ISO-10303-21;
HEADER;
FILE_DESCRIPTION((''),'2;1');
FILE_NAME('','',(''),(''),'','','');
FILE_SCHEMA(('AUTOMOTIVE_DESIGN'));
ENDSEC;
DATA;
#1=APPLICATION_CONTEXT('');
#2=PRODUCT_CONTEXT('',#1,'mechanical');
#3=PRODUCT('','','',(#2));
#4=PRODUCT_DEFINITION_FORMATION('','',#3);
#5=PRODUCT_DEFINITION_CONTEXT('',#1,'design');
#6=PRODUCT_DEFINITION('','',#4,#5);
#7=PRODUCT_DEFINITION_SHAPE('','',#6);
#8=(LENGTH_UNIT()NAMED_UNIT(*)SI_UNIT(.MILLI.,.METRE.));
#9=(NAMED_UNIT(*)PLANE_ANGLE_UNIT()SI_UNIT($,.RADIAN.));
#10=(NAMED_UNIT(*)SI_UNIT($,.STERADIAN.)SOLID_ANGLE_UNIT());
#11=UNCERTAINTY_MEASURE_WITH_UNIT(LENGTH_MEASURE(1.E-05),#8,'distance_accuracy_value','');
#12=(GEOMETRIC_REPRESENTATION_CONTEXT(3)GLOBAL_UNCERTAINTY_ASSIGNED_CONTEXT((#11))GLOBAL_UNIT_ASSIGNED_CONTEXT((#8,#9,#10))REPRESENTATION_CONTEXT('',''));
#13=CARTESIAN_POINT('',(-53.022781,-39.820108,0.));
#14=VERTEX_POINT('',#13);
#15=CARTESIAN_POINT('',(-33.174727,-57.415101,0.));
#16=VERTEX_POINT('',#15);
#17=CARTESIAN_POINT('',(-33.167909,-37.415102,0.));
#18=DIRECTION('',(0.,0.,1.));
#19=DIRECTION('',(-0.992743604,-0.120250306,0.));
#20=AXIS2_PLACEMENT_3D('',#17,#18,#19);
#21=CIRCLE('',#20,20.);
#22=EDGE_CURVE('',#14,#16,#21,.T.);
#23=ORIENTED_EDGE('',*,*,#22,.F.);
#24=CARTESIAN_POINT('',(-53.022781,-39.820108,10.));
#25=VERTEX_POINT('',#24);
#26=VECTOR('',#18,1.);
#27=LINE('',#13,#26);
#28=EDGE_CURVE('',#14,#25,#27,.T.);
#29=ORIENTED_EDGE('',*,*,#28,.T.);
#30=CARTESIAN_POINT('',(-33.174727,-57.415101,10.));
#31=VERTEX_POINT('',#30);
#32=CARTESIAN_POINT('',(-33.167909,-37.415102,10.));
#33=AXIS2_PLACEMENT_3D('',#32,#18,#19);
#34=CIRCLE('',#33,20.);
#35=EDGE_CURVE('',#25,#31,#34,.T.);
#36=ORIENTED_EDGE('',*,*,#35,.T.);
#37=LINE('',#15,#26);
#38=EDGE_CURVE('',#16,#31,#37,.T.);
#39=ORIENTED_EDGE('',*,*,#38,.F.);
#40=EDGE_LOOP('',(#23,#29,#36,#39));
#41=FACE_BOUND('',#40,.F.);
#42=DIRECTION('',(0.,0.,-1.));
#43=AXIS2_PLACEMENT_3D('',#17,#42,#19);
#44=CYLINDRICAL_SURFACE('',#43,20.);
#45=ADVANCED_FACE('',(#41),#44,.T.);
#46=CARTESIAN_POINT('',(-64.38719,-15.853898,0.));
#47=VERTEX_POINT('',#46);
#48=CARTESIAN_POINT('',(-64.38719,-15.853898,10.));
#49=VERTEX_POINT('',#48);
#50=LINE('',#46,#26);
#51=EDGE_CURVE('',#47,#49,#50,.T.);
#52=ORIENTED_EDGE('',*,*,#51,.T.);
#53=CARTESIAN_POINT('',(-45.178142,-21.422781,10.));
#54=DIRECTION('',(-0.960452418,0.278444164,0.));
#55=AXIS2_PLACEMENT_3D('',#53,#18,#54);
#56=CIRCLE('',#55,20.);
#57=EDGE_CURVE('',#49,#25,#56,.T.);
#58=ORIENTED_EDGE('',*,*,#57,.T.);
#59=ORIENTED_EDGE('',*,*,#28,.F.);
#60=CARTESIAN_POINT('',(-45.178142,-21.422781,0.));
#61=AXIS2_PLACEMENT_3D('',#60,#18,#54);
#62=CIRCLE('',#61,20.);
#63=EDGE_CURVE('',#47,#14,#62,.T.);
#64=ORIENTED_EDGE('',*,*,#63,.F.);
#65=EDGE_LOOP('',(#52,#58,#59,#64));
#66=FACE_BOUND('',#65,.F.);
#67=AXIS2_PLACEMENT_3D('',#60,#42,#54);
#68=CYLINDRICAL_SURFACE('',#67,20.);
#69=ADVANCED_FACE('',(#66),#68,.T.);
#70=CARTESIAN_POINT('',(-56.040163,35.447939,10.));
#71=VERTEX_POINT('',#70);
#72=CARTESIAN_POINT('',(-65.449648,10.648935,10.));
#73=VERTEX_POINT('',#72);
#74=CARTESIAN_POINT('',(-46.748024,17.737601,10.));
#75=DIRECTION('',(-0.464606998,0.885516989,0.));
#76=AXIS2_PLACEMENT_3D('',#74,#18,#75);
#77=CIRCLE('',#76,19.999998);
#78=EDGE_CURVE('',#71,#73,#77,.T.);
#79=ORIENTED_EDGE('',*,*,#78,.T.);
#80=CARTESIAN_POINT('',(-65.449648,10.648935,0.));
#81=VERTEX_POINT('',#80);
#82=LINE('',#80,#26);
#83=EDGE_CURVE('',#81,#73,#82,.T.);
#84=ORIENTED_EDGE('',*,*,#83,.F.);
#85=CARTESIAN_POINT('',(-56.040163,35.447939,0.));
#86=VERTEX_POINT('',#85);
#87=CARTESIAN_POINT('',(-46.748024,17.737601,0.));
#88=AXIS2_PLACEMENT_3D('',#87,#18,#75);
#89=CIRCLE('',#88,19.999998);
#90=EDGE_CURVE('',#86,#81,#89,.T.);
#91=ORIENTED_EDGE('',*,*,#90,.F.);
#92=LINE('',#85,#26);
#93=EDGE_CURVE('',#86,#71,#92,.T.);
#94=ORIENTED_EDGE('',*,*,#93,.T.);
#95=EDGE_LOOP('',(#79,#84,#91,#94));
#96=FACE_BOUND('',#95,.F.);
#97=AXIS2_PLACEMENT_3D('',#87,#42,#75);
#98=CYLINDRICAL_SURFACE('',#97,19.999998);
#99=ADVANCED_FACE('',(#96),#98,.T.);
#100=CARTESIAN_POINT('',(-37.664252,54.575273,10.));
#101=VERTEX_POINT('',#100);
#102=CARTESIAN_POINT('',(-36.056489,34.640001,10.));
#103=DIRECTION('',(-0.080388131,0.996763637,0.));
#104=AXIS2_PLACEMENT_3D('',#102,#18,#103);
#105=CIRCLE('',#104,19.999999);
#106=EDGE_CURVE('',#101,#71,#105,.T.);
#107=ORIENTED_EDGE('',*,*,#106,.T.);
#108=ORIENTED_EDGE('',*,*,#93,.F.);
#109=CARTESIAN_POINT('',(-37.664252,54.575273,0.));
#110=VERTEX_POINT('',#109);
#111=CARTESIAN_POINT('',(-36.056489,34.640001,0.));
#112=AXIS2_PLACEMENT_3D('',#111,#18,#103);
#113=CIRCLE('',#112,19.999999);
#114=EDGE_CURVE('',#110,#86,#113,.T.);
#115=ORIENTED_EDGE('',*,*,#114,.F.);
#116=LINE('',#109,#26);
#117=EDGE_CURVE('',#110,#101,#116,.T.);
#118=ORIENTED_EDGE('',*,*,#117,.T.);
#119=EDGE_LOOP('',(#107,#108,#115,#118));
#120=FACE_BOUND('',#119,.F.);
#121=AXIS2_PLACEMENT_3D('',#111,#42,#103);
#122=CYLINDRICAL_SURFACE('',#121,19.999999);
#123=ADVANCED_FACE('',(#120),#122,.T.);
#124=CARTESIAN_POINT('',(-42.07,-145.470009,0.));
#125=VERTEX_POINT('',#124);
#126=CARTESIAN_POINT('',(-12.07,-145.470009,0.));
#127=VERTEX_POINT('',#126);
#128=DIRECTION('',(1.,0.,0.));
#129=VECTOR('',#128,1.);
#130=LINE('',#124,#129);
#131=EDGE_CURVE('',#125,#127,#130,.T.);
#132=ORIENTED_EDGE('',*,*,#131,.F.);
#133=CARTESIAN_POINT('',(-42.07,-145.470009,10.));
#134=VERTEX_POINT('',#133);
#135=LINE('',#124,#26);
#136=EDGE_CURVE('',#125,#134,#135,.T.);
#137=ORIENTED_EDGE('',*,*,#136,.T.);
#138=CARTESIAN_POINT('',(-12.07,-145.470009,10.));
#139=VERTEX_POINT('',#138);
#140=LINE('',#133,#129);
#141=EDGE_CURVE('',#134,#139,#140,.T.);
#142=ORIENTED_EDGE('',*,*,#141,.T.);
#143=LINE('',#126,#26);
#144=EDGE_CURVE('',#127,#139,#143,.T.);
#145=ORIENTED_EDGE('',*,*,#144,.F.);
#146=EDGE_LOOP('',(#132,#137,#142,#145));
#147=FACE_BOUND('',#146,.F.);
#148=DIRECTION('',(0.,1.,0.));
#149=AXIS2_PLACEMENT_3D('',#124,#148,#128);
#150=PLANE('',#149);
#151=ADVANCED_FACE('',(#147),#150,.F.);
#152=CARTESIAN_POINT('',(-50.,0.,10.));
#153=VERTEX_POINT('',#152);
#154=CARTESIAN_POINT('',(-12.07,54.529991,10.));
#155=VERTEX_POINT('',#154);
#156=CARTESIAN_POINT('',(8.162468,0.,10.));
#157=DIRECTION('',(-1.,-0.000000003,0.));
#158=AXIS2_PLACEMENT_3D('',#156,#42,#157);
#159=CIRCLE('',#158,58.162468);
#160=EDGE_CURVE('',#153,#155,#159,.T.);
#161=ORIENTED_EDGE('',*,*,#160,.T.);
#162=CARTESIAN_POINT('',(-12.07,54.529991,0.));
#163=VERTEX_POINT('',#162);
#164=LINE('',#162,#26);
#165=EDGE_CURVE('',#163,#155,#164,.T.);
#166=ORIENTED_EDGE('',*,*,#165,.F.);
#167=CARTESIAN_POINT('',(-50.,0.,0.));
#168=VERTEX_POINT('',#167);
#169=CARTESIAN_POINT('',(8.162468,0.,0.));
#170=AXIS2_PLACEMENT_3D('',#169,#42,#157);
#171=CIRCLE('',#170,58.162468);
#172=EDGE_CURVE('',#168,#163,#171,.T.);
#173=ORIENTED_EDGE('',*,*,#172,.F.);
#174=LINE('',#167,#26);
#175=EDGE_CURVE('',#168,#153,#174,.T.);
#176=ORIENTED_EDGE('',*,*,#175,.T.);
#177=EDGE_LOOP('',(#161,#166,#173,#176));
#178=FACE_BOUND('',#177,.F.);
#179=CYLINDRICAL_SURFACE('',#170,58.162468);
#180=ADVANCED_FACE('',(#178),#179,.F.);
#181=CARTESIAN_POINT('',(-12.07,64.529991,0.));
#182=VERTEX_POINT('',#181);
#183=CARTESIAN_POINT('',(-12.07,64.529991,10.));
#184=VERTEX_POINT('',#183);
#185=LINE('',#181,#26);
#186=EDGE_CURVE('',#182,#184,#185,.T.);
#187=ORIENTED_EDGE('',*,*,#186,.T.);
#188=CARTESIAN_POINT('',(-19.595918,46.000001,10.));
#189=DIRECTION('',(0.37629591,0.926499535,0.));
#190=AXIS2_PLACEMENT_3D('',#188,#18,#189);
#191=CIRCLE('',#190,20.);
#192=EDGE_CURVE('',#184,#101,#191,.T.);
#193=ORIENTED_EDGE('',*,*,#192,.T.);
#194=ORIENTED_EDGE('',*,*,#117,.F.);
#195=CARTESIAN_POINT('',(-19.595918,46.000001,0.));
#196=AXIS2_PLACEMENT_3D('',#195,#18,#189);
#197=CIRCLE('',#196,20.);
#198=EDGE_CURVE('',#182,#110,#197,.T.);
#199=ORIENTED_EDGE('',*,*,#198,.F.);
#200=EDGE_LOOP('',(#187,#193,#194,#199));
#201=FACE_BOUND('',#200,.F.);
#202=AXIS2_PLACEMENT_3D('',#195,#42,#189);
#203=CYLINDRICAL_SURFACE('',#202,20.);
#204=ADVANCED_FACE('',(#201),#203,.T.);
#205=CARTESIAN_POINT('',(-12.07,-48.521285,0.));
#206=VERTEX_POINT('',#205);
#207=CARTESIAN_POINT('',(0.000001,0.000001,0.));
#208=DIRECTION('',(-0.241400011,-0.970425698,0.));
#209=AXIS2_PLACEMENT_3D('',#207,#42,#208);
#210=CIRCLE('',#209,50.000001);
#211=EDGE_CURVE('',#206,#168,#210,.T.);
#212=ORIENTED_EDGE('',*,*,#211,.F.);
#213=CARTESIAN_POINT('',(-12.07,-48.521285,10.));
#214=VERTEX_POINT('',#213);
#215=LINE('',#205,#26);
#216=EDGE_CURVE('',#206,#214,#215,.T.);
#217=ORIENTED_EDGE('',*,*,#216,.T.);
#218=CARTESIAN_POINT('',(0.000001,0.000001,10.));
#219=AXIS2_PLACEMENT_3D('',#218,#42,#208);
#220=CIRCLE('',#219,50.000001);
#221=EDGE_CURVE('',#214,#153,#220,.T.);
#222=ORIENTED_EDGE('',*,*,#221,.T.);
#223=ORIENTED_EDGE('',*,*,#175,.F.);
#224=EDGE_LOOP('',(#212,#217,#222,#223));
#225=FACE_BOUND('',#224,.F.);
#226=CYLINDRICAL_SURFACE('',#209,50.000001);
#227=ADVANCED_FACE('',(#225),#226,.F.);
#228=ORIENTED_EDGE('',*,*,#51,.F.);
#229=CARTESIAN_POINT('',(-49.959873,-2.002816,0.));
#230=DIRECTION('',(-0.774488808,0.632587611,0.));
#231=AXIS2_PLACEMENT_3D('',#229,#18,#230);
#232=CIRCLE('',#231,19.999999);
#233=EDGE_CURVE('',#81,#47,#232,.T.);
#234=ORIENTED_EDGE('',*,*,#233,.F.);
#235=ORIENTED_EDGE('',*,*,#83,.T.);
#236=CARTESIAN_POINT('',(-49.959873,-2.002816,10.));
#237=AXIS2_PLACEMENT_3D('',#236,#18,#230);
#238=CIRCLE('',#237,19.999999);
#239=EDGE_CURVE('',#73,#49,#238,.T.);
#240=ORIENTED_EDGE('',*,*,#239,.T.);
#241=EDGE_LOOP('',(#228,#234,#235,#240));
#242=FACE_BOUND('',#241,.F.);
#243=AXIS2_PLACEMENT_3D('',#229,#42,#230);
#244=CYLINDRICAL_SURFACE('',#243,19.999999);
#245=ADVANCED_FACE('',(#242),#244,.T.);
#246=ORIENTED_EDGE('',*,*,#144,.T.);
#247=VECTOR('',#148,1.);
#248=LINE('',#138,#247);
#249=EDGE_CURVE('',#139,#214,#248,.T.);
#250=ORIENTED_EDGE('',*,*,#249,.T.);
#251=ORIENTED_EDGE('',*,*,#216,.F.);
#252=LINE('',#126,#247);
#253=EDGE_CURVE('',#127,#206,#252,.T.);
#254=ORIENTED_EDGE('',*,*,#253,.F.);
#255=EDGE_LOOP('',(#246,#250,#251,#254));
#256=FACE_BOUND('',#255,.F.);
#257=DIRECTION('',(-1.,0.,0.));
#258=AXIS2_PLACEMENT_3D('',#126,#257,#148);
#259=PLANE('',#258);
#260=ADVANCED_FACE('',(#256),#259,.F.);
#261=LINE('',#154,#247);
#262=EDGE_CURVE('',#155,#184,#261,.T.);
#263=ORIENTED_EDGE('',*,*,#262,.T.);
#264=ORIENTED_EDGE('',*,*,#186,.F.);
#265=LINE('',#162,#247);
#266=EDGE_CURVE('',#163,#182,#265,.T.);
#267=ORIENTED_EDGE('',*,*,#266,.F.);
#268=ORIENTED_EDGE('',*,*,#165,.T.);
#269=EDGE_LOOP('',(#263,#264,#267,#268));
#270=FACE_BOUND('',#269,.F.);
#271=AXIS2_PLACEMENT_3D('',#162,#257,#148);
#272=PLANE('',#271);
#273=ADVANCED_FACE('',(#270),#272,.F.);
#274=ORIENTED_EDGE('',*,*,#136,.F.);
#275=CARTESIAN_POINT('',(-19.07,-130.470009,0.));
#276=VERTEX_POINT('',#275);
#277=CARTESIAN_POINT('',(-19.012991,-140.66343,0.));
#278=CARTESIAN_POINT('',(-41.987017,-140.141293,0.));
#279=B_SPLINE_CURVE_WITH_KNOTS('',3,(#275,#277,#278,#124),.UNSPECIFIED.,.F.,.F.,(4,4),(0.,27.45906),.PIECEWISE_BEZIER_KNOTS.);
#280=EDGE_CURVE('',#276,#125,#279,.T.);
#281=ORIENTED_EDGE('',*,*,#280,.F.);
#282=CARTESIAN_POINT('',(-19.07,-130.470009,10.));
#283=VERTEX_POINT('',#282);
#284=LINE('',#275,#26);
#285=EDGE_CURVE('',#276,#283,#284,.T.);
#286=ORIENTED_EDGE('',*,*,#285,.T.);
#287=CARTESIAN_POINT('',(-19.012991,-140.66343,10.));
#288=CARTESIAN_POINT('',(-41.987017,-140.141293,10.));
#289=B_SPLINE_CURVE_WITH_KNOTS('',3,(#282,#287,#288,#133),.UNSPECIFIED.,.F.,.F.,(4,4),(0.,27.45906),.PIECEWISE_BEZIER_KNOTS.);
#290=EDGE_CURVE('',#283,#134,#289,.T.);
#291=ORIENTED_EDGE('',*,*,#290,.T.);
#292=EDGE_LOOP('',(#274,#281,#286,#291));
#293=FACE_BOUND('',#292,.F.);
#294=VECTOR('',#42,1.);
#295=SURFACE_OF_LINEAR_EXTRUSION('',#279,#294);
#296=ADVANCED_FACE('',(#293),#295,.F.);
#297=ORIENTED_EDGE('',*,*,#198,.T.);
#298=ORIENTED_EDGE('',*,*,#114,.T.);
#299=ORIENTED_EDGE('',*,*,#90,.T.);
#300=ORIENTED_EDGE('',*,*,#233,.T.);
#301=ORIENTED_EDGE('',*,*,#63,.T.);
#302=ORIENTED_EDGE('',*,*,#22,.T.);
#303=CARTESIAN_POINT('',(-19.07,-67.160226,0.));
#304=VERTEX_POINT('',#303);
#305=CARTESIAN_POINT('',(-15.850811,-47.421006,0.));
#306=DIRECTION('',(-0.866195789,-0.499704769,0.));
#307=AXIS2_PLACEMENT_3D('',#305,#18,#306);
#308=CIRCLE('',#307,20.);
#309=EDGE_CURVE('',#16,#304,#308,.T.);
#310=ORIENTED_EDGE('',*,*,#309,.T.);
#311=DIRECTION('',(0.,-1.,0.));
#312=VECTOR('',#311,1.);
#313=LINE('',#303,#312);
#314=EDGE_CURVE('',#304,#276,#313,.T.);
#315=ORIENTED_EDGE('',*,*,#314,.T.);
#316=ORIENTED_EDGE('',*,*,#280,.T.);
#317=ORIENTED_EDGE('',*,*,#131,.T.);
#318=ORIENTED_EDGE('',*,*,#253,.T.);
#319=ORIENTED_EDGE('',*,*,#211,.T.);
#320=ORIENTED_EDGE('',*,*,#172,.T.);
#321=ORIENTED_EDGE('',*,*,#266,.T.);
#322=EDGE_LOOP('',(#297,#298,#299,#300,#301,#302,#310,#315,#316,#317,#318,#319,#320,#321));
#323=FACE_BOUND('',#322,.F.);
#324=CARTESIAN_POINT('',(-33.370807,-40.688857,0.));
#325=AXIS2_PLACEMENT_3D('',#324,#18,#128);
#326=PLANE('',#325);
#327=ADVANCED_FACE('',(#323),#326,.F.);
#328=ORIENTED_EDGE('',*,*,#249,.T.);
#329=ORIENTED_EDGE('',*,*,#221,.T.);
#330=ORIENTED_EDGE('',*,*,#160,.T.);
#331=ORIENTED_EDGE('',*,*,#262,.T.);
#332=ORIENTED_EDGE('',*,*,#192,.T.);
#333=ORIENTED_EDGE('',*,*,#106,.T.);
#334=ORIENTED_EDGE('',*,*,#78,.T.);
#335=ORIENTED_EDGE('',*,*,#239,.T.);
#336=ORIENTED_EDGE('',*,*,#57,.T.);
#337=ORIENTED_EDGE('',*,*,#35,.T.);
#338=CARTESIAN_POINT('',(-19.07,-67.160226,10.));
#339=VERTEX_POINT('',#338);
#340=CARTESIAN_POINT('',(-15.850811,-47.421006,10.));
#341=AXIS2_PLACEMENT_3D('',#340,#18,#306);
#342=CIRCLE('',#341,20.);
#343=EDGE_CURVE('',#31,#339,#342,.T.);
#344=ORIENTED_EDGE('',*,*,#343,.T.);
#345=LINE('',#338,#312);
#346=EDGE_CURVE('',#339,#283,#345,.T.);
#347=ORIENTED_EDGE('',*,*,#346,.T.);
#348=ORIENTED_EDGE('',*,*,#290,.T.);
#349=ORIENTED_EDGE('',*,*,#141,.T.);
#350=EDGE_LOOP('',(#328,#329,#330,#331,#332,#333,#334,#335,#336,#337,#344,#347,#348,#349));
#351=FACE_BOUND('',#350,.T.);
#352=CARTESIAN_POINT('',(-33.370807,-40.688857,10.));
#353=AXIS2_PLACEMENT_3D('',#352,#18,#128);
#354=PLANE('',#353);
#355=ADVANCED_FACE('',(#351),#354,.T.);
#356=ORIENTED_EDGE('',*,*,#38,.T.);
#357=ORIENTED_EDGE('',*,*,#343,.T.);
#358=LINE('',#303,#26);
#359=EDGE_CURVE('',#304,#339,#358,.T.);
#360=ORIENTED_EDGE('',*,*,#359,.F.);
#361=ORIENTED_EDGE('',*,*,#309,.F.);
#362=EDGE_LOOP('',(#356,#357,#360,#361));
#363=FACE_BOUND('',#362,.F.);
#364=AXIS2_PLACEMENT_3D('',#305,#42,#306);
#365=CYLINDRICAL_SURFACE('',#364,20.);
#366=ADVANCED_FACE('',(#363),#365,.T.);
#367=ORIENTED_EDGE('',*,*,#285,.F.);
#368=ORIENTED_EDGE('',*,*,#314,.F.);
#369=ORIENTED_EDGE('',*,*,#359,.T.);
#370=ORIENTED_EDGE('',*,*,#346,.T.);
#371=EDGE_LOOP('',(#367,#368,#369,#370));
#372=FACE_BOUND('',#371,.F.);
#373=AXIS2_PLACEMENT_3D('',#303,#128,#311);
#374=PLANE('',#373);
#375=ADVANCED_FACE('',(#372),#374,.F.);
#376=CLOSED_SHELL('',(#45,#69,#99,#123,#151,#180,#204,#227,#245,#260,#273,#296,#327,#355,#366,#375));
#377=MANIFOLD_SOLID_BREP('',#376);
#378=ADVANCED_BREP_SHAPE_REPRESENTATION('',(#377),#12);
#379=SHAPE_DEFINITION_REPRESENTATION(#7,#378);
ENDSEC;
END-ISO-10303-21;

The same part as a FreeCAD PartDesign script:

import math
import FreeCAD as App
import Part
import Sketcher

V = App.Vector
Q = App.Units.Quantity

doc = App.newDocument("Part")
body = doc.addObject("PartDesign::Body", "Body")

# Sketch on XY plane
sketch1 = doc.addObject("Sketcher::SketchObject", "Sketch")
body.addObject(sketch1)
sketch1.AttachmentSupport = (doc.XY_Plane, [""])
sketch1.MapMode = "FlatFace"
sketch1.addGeometry(Part.LineSegment(V(-12.07, 54.529991, 0), V(-12.07, 64.529991, 0)), False)
sketch1.addGeometry(Part.ArcOfCircle(Part.Circle(V(-19.595918, 46.000001, 0), V(0, 0, 1), 20), math.radians(67.895569), math.radians(154.610878)), False)
sketch1.addGeometry(Part.ArcOfCircle(Part.Circle(V(-36.056489, 34.640001, 0), V(0, 0, 1), 19.999999), math.radians(94.610876), math.radians(177.684798)), False)
sketch1.addGeometry(Part.ArcOfCircle(Part.Circle(V(-46.748024, 17.737601, 0), V(0, 0, 1), 19.999998), math.radians(117.684791), math.radians(200.758718)), False)
sketch1.addGeometry(Part.ArcOfCircle(Part.Circle(V(-49.959873, -2.002816, 0), V(0, 0, 1), 19.999999), math.radians(140.758709), math.radians(223.832633)), False)
sketch1.addGeometry(Part.ArcOfCircle(Part.Circle(V(-45.178142, -21.422781, 0), V(0, 0, 1), 20), math.radians(163.83263), math.radians(246.90655)), False)
sketch1.addGeometry(Part.ArcOfCircle(Part.Circle(V(-33.167909, -37.415102, 0), V(0, 0, 1), 20), math.radians(-173.093451), math.radians(-90.019533)), False)
sketch1.addGeometry(Part.ArcOfCircle(Part.Circle(V(-15.850811, -47.421006, 0), V(0, 0, 1), 20), math.radians(-150.01953), math.radians(-99.262589)), False)
sketch1.addGeometry(Part.LineSegment(V(-19.07, -67.160226, 0), V(-19.07, -130.470009, 0)), False)
sketch1.addGeometry(Part.BSplineCurve([V(-19.07, -130.470009, 0), V(-19.012991, -140.66343, 0), V(-41.987017, -140.141293, 0), V(-42.07, -145.470009, 0)], [4, 4], [0, 27.45906], False, 3, [1, 1, 1, 1], False), False)
sketch1.addGeometry(Part.LineSegment(V(-42.07, -145.470009, 0), V(-12.07, -145.470009, 0)), False)
sketch1.addGeometry(Part.LineSegment(V(-12.07, -145.470009, 0), V(-12.07, -48.521285, 0)), False)
sketch1.addGeometry(Part.ArcOfCircle(Part.Circle(V(0.000001, 0.000001, 0), V(0, 0, 1), 50.000001), math.radians(-179.999999), math.radians(-103.969185)), False)
sketch1.addGeometry(Part.ArcOfCircle(Part.Circle(V(8.162468, 0, 0), V(0, 0, 1), 58.162468), math.radians(110.356554), math.radians(180)), False)
sketch1.addConstraint(Sketcher.Constraint("Block", 9))
sketch1.addConstraint(Sketcher.Constraint("Coincident", 0, 2, 1, 1))
sketch1.addConstraint(Sketcher.Constraint("Coincident", 1, 2, 2, 1))
sketch1.addConstraint(Sketcher.Constraint("Coincident", 2, 2, 3, 1))
sketch1.addConstraint(Sketcher.Constraint("Coincident", 3, 2, 4, 1))
sketch1.addConstraint(Sketcher.Constraint("Coincident", 4, 2, 5, 1))
sketch1.addConstraint(Sketcher.Constraint("Coincident", 5, 2, 6, 1))
sketch1.addConstraint(Sketcher.Constraint("Coincident", 6, 2, 7, 1))
sketch1.addConstraint(Sketcher.Constraint("Coincident", 7, 2, 8, 1))
sketch1.addConstraint(Sketcher.Constraint("Coincident", 8, 2, 9, 1))
sketch1.addConstraint(Sketcher.Constraint("Coincident", 9, 2, 10, 1))
sketch1.addConstraint(Sketcher.Constraint("Coincident", 10, 2, 11, 1))
sketch1.addConstraint(Sketcher.Constraint("Coincident", 11, 2, 12, 2))
sketch1.addConstraint(Sketcher.Constraint("Tangent", 12, 1, 13, 2))
sketch1.addConstraint(Sketcher.Constraint("Coincident", 13, 1, 0, 1))
sketch1.addConstraint(Sketcher.Constraint("Vertical", 0))
sketch1.addConstraint(Sketcher.Constraint("Vertical", 8))
sketch1.addConstraint(Sketcher.Constraint("Horizontal", 10))
sketch1.addConstraint(Sketcher.Constraint("Vertical", 11))
sketch1.addConstraint(Sketcher.Constraint("Coincident", 12, 3, -1, 1))
sketch1.addConstraint(Sketcher.Constraint("Equal", 1, 2))
sketch1.addConstraint(Sketcher.Constraint("Equal", 2, 3))
sketch1.addConstraint(Sketcher.Constraint("Equal", 3, 4))
sketch1.addConstraint(Sketcher.Constraint("Equal", 4, 5))
sketch1.addConstraint(Sketcher.Constraint("Equal", 5, 6))
sketch1.addConstraint(Sketcher.Constraint("Equal", 6, 7))
sketch1.addConstraint(Sketcher.Constraint("PointOnObject", 13, 3, -1))
sketch1.addConstraint(Sketcher.Constraint("Vertical", 0, 2, 10, 2))
sketch1.addConstraint(Sketcher.Constraint("Radius", 1, Q("20 mm")))
sketch1.addConstraint(Sketcher.Constraint("Radius", 12, Q("50.000001 mm")))
sketch1.addConstraint(Sketcher.Constraint("DistanceX", 10, 1, 10, 2, Q("30 mm")))
sketch1.addConstraint(Sketcher.Constraint("DistanceY", 0, 1, 0, 2, Q("10 mm")))
sketch1.addConstraint(Sketcher.Constraint("DistanceY", -1, 1, 1, 3, Q("46.000001 mm")))
sketch1.addConstraint(Sketcher.Constraint("DistanceY", -1, 1, 2, 3, Q("34.640001 mm")))
sketch1.addConstraint(Sketcher.Constraint("Radius", 13, Q("58.162468 mm")))
sketch1.addConstraint(Sketcher.Constraint("DistanceY", -1, 1, 3, 3, Q("17.737601 mm")))
sketch1.addConstraint(Sketcher.Constraint("DistanceY", 6, 3, -1, 1, Q("37.415102 mm")))
sketch1.addConstraint(Sketcher.Constraint("DistanceY", 4, 2, -1, 1, Q("15.853898 mm")))
sketch1.addConstraint(Sketcher.Constraint("DistanceY", 8, 2, 5, 2, Q("90.649901 mm")))
sketch1.addConstraint(Sketcher.Constraint("DistanceY", 8, 2, 8, 1, Q("63.309783 mm")))
sketch1.addConstraint(Sketcher.Constraint("DistanceX", 2, 3, -1, 1, Q("36.056489 mm")))
sketch1.addConstraint(Sketcher.Constraint("DistanceX", 5, 3, -1, 1, Q("45.178142 mm")))
sketch1.addConstraint(Sketcher.Constraint("DistanceY", 5, 3, -1, 1, Q("21.422781 mm")))
sketch1.addConstraint(Sketcher.Constraint("DistanceX", 7, 3, -1, 1, Q("15.850811 mm")))
sketch1.addConstraint(Sketcher.Constraint("DistanceY", -1, 1, 2, 2, Q("35.447939 mm")))
sketch1.addConstraint(Sketcher.Constraint("DistanceX", 4, 3, 3, 3, Q("3.211849 mm")))
pad1 = doc.addObject("PartDesign::Pad", "Pad")
body.addObject(pad1)
pad1.Profile = sketch1
pad1.Length = 10

doc.recompute()
